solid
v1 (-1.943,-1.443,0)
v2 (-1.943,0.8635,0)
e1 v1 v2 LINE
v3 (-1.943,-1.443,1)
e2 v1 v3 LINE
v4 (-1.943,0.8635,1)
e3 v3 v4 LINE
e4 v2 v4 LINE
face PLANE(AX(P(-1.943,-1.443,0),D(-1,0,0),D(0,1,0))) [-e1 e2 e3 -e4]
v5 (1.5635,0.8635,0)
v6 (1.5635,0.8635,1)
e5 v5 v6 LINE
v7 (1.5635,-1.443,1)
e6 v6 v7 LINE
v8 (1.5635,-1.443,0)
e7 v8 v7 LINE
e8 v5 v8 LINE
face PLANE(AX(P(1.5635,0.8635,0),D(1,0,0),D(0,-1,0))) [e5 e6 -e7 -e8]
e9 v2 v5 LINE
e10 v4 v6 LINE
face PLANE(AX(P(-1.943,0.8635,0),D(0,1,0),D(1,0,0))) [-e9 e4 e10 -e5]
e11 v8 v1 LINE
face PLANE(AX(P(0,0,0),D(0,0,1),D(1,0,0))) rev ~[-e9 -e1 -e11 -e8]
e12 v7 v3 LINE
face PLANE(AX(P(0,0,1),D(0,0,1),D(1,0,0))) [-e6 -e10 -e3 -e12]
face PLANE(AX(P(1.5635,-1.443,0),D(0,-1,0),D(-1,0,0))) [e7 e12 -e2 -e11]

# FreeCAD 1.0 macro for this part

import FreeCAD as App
import Part
import Sketcher


def add_polygon(sketch, points):
    """Adds a closed chain of lines whose ends are joined by coincident constraints."""
    first, n = sketch.GeometryCount, len(points)
    for a, b in zip(points, points[1:] + points[:1]):
        sketch.addGeometry(Part.LineSegment(App.Vector(*a, 0), App.Vector(*b, 0)), False)
    for i in range(n):
        sketch.addConstraint(Sketcher.Constraint("Coincident", first + i, 2, first + (i + 1) % n, 1))

doc = App.newDocument("Part")
body = doc.addObject("PartDesign::Body", "Body")

sketch1 = body.newObject("Sketcher::SketchObject", "Sketch")
sketch1.AttachmentSupport = (doc.getObject("XY_Plane"), [""])
sketch1.MapMode = "FlatFace"
add_polygon(sketch1, [(1.6, 0.9), (-1.9, 0.9), (-1.9, -1.4), (1.6, -1.4)])
sketch1.addConstraint(Sketcher.Constraint("Horizontal", 0))
sketch1.addConstraint(Sketcher.Constraint("Vertical", 1))
sketch1.addConstraint(Sketcher.Constraint("Horizontal", 2))
sketch1.addConstraint(Sketcher.Constraint("Vertical", 3))
sketch1.addConstraint(Sketcher.Constraint("DistanceX", 0, 2, 0, 1, 3.5065))
sketch1.addConstraint(Sketcher.Constraint("DistanceY", 1, 2, 1, 1, 2.3065))
sketch1.addConstraint(Sketcher.Constraint("DistanceX", 0, 2, -1, 1, 1.943))
sketch1.addConstraint(Sketcher.Constraint("DistanceY", 1, 2, -1, 1, 1.443))
pad1 = body.newObject("PartDesign::Pad", "Pad")
pad1.Profile = sketch1
pad1.Length = 1

doc.recompute()
